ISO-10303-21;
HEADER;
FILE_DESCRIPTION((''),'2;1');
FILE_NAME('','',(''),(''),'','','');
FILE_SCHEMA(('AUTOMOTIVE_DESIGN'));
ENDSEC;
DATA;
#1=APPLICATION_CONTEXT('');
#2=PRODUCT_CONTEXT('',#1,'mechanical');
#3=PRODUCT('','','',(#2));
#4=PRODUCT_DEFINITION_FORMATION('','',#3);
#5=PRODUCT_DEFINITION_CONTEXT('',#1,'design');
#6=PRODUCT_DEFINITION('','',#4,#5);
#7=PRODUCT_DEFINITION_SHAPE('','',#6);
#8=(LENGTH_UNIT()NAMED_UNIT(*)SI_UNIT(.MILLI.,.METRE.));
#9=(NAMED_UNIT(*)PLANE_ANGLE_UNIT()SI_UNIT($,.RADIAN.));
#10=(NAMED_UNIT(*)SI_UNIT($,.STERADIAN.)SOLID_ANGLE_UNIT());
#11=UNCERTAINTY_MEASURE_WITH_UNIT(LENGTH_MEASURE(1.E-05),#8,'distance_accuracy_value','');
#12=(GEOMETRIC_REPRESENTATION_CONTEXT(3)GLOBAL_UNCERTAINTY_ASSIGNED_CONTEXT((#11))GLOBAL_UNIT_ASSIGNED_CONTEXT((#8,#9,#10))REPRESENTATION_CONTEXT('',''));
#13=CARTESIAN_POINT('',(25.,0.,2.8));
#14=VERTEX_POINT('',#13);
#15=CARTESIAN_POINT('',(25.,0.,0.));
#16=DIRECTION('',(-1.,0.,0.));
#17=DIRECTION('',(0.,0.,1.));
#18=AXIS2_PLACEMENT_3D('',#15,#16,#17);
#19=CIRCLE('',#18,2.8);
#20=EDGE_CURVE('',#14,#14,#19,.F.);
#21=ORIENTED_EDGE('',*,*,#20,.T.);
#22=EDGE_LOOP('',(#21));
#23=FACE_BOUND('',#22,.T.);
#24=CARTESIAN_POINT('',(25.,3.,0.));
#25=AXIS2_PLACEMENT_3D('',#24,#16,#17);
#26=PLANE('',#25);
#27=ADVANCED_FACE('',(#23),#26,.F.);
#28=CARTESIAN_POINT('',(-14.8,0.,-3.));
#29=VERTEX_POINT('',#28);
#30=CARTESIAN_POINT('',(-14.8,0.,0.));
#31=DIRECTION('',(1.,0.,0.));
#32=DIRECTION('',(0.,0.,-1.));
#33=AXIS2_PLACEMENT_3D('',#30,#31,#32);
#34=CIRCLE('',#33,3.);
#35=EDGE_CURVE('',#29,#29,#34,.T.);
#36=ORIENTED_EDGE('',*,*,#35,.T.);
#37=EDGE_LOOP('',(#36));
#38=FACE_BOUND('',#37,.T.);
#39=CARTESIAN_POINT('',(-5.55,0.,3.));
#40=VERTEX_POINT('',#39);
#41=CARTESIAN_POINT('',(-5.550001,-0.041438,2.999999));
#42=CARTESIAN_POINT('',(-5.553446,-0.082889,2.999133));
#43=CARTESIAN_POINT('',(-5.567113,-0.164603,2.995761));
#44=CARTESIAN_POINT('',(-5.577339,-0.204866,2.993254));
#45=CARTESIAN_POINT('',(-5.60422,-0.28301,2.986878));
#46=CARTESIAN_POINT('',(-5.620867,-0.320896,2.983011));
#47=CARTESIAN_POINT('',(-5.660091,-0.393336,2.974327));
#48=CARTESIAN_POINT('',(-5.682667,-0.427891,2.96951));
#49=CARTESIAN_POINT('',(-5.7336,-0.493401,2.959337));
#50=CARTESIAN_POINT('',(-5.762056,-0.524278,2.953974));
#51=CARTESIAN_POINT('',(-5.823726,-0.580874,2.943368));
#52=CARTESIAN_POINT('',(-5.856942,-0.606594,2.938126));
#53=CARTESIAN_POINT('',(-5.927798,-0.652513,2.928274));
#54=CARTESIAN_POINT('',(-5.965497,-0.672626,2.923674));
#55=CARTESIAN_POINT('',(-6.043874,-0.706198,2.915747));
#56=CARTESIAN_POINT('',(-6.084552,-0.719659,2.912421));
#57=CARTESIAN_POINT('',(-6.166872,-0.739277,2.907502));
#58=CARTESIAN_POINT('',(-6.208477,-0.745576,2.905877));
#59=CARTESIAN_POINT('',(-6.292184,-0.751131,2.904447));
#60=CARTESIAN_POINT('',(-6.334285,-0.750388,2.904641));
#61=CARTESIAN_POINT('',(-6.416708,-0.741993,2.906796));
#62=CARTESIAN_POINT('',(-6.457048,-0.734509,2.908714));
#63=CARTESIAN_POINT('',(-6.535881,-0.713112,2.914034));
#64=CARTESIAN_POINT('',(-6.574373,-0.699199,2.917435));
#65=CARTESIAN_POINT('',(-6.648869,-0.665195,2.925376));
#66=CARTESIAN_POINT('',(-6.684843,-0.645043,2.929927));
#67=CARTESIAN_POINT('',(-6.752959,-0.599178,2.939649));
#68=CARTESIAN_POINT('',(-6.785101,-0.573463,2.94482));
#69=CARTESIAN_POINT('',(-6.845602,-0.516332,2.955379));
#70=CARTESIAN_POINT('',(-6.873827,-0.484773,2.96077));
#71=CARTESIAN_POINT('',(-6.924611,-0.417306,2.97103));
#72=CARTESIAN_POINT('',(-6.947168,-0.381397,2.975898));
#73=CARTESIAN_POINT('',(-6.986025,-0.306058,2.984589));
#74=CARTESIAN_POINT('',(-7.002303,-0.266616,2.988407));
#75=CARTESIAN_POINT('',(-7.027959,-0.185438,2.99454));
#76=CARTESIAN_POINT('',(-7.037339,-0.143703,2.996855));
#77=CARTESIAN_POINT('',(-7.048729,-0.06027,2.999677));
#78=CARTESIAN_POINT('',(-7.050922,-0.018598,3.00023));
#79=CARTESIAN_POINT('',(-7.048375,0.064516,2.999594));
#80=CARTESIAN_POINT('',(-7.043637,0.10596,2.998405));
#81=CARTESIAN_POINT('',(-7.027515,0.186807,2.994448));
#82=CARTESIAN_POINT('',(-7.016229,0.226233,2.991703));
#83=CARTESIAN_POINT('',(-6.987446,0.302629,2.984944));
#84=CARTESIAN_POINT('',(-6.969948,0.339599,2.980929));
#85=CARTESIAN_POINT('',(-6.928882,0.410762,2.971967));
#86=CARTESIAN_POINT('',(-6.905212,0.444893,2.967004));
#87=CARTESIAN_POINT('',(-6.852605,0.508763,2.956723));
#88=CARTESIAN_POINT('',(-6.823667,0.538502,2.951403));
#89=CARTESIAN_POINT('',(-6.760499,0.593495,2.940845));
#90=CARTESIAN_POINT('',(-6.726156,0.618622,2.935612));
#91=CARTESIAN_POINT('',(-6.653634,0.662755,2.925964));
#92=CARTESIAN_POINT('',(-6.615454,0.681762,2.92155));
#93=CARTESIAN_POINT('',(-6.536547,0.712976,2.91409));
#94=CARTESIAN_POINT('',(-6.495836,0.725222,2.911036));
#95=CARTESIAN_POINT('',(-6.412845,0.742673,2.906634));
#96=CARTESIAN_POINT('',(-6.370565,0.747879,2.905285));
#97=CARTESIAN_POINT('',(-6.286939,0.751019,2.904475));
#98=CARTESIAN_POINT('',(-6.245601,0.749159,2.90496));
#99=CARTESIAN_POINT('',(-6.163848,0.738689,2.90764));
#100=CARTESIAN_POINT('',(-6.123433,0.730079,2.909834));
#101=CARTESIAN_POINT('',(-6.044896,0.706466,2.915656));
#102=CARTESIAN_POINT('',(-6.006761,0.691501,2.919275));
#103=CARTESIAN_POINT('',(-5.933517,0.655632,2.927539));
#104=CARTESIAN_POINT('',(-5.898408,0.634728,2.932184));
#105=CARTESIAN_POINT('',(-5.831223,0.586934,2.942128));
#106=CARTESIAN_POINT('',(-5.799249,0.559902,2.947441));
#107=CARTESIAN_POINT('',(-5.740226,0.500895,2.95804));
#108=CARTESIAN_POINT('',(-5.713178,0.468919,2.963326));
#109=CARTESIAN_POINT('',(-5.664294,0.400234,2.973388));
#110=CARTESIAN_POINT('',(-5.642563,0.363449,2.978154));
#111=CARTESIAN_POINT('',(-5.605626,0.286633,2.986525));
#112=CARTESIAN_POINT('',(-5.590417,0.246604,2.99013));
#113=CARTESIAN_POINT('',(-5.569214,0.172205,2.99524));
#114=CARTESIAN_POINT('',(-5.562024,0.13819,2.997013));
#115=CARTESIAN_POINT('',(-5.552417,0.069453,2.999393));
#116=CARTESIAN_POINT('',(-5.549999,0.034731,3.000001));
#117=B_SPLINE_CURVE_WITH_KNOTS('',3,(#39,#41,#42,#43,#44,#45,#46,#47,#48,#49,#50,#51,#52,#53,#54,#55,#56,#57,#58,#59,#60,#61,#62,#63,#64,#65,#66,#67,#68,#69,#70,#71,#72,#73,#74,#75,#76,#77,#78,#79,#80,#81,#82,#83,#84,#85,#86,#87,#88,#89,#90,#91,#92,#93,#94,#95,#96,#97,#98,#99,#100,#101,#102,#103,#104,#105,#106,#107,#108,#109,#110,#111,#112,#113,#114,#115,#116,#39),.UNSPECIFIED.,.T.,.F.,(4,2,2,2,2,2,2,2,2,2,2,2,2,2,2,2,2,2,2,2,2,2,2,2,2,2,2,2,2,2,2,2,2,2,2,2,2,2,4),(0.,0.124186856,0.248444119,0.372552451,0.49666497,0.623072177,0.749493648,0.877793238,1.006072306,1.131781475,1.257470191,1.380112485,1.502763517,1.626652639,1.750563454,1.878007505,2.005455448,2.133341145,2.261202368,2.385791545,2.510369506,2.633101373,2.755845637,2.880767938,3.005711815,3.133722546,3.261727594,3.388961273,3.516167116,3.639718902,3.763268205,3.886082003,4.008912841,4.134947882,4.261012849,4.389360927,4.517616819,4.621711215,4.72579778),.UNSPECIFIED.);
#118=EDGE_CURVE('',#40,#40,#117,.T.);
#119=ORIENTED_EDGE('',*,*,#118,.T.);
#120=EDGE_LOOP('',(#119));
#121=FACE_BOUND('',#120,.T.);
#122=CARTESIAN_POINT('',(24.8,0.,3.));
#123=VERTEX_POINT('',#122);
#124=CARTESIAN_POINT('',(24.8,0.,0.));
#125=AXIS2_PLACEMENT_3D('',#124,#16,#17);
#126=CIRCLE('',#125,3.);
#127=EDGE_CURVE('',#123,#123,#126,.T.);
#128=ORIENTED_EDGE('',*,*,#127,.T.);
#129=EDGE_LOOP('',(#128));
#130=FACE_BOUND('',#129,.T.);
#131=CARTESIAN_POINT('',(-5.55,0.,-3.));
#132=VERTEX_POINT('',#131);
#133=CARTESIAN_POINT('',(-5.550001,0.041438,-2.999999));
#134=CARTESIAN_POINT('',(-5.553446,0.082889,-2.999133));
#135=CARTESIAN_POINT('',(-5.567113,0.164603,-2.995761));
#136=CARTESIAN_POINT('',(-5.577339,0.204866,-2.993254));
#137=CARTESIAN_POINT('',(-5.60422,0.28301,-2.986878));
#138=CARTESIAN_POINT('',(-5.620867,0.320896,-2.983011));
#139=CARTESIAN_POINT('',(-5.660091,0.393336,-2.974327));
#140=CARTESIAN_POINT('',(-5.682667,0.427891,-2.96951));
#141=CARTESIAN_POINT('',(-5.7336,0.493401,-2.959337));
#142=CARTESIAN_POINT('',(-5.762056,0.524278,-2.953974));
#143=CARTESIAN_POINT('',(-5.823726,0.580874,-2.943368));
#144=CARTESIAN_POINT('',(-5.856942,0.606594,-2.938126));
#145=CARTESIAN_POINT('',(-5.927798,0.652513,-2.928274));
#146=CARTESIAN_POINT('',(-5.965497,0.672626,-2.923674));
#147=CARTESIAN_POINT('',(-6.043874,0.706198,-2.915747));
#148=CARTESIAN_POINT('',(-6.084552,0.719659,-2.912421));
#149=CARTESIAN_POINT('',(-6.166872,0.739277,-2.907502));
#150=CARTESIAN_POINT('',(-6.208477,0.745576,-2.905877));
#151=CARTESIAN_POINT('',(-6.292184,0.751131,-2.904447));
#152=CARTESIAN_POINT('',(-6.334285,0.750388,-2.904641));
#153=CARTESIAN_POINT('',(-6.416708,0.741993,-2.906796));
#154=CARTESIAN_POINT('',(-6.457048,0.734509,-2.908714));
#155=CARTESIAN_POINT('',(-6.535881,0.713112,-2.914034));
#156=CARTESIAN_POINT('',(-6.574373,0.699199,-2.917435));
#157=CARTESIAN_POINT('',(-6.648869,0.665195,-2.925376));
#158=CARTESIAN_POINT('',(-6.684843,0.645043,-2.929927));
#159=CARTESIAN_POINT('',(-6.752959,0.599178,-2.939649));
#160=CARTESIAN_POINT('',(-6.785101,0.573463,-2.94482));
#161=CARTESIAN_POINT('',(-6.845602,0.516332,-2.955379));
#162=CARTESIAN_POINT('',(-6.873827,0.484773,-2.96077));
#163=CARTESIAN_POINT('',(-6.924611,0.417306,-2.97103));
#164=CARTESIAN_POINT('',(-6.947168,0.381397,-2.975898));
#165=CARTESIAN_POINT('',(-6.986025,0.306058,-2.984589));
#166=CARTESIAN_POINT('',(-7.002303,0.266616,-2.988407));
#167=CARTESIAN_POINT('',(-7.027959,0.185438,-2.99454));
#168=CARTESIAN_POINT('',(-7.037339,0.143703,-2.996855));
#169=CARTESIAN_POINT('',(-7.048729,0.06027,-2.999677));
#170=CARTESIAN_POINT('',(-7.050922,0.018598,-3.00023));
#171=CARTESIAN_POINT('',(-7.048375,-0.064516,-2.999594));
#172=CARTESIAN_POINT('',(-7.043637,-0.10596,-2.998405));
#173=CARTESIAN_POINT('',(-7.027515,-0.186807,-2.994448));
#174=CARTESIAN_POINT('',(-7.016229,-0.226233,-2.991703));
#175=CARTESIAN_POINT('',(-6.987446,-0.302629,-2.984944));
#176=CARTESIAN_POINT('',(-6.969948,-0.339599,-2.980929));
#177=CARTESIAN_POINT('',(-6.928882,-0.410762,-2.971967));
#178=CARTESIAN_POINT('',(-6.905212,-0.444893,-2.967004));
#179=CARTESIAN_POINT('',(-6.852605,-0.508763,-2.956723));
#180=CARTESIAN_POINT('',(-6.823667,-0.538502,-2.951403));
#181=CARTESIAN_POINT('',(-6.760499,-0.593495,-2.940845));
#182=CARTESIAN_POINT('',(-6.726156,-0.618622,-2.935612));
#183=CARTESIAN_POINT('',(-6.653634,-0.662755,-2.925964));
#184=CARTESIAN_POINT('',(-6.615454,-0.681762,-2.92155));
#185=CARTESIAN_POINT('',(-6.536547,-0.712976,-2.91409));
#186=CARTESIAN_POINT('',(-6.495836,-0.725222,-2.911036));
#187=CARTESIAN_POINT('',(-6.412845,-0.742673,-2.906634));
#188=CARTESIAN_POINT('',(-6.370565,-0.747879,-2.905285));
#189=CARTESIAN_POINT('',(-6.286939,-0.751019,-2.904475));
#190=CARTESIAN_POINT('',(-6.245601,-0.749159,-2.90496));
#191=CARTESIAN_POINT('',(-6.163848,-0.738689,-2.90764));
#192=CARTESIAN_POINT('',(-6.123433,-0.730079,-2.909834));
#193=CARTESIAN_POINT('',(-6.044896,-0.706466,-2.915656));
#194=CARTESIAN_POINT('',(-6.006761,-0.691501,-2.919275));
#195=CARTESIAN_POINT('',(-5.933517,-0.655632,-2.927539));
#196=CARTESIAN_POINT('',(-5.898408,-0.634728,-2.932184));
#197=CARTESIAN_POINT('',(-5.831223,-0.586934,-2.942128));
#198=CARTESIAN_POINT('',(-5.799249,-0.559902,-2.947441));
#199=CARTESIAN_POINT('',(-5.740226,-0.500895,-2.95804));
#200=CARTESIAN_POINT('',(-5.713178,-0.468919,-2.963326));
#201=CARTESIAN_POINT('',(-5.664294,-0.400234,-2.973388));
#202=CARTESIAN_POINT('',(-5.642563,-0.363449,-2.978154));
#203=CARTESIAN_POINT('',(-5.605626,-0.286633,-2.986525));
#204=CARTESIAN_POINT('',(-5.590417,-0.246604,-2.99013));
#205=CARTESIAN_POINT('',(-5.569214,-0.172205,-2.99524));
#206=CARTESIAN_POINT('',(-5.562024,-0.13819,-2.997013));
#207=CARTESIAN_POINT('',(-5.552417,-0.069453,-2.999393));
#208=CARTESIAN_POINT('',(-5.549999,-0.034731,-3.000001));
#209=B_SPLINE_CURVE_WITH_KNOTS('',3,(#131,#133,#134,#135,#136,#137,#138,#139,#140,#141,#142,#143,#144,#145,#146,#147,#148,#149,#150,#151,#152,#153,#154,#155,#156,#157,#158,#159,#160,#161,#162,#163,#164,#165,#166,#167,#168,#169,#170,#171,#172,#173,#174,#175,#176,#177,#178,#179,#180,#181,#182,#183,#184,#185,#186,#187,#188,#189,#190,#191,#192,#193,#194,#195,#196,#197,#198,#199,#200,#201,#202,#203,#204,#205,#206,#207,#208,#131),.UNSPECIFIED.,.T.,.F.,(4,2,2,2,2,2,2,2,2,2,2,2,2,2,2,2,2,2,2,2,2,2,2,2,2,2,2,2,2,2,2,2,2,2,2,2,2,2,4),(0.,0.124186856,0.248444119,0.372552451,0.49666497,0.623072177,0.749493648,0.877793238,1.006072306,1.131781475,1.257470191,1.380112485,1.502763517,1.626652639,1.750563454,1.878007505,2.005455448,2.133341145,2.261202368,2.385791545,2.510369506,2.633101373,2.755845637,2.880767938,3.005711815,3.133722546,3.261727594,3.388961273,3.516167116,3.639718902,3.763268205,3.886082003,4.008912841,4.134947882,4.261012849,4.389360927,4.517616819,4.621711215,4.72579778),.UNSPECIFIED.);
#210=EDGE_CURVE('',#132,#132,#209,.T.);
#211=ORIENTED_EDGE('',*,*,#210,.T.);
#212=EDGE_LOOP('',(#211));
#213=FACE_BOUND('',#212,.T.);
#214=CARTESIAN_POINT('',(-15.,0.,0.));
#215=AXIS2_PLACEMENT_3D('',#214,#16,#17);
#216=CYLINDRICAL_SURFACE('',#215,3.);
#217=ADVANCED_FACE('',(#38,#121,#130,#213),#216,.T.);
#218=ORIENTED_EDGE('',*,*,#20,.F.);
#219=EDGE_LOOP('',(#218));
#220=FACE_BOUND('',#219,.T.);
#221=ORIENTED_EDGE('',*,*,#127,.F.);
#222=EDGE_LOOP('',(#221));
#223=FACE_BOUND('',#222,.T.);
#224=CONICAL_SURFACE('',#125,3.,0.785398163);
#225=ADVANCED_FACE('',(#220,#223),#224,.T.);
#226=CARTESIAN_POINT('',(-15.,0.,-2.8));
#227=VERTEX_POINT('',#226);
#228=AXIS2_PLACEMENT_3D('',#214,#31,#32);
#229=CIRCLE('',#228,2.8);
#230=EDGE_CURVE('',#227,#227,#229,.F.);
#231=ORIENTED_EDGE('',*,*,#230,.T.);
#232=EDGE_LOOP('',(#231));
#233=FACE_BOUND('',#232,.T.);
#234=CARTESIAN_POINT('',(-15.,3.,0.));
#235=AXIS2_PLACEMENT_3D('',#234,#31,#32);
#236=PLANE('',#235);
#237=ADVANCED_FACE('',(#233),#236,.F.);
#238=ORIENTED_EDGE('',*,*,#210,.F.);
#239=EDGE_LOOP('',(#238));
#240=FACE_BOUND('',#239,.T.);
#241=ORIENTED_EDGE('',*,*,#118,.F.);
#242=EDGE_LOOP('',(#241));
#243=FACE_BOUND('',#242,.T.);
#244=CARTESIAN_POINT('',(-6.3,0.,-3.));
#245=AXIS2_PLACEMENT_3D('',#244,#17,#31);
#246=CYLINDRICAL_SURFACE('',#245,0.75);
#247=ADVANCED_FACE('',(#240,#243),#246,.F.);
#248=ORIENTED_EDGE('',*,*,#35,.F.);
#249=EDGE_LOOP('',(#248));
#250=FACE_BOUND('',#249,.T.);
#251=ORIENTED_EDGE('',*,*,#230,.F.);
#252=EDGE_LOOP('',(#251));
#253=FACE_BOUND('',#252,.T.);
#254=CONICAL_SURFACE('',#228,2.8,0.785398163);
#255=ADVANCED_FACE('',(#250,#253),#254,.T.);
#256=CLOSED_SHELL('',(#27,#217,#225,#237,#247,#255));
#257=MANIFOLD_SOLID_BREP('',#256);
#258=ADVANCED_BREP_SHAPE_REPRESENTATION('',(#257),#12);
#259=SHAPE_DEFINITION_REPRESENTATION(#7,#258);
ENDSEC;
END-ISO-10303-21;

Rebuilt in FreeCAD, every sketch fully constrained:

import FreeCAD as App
import Part
import Sketcher
from FreeCAD import Vector
Q = App.Units.Quantity


def edges_at(feature, points):
    """Names of the edges that pass closest to the given points."""
    edges = feature.Shape.Edges
    near = lambda p: min(range(len(edges)), key=lambda i: edges[i].distToShape(Part.Vertex(*p))[0])
    return sorted({f"Edge{near(p) + 1}" for p in points})

doc = App.newDocument("Part")
body = doc.addObject("PartDesign::Body", "Body")

# Sketch on XY plane
sketch1 = doc.addObject("Sketcher::SketchObject", "Sketch")
body.addObject(sketch1)
sketch1.AttachmentSupport = (doc.XY_Plane, [""])
sketch1.MapMode = "FlatFace"
sketch1.addGeometry([
    Part.LineSegment(Vector(-15, 3, 0), Vector(-15, 0, 0)),
    Part.LineSegment(Vector(-15, 0, 0), Vector(25, 0, 0)),
    Part.LineSegment(Vector(25, 0, 0), Vector(25, 3, 0)),
    Part.LineSegment(Vector(25, 3, 0), Vector(-15, 3, 0)),
], False)
sketch1.addConstraint([
    Sketcher.Constraint("Coincident", 0, 2, 1, 1),
    Sketcher.Constraint("Coincident", 1, 2, 2, 1),
    Sketcher.Constraint("Coincident", 2, 2, 3, 1),
    Sketcher.Constraint("Coincident", 3, 2, 0, 1),
    Sketcher.Constraint("Vertical", 0),
    Sketcher.Constraint("Horizontal", 1),
    Sketcher.Constraint("Vertical", 2),
    Sketcher.Constraint("Horizontal", 3),
    Sketcher.Constraint("PointOnObject", 0, 2, -1),
    Sketcher.Constraint("DistanceX", 1, 1, 1, 2, Q("40 mm")),
    Sketcher.Constraint("DistanceY", 0, 2, 0, 1, Q("3 mm")),
    Sketcher.Constraint("DistanceX", 0, 2, -1, 1, Q("15 mm")),
])
revolution = doc.addObject("PartDesign::Revolution", "Revolution")
body.addObject(revolution)
revolution.Profile = sketch1
revolution.ReferenceAxis = (sketch1, ["H_Axis"])
revolution.Angle = 360
doc.recompute()

chamfer = doc.addObject("PartDesign::Chamfer", "Chamfer")
body.addObject(chamfer)
chamfer.Base = (revolution, edges_at(revolution, [(-15, -3, 0), (25, -3, 0)]))
chamfer.Size = 0.2

# Sketch on XY plane
sketch2 = doc.addObject("Sketcher::SketchObject", "Sketch001")
body.addObject(sketch2)
sketch2.AttachmentSupport = (doc.XY_Plane, [""])
sketch2.MapMode = "FlatFace"
sketch2.addGeometry(Part.Circle(Vector(-6.3, 0, 0), Vector(0, 0, 1), 0.8), False)
sketch2.addConstraint([
    Sketcher.Constraint("PointOnObject", 0, 3, -1),
    Sketcher.Constraint("Diameter", 0, Q("1.5 mm")),
    Sketcher.Constraint("DistanceX", 0, 3, -1, 1, Q("6.3 mm")),
])
pocket1 = doc.addObject("PartDesign::Pocket", "Pocket")
body.addObject(pocket1)
pocket1.Profile = sketch2
pocket1.Type = "ThroughAll"
pocket1.Midplane = True

doc.recompute()
